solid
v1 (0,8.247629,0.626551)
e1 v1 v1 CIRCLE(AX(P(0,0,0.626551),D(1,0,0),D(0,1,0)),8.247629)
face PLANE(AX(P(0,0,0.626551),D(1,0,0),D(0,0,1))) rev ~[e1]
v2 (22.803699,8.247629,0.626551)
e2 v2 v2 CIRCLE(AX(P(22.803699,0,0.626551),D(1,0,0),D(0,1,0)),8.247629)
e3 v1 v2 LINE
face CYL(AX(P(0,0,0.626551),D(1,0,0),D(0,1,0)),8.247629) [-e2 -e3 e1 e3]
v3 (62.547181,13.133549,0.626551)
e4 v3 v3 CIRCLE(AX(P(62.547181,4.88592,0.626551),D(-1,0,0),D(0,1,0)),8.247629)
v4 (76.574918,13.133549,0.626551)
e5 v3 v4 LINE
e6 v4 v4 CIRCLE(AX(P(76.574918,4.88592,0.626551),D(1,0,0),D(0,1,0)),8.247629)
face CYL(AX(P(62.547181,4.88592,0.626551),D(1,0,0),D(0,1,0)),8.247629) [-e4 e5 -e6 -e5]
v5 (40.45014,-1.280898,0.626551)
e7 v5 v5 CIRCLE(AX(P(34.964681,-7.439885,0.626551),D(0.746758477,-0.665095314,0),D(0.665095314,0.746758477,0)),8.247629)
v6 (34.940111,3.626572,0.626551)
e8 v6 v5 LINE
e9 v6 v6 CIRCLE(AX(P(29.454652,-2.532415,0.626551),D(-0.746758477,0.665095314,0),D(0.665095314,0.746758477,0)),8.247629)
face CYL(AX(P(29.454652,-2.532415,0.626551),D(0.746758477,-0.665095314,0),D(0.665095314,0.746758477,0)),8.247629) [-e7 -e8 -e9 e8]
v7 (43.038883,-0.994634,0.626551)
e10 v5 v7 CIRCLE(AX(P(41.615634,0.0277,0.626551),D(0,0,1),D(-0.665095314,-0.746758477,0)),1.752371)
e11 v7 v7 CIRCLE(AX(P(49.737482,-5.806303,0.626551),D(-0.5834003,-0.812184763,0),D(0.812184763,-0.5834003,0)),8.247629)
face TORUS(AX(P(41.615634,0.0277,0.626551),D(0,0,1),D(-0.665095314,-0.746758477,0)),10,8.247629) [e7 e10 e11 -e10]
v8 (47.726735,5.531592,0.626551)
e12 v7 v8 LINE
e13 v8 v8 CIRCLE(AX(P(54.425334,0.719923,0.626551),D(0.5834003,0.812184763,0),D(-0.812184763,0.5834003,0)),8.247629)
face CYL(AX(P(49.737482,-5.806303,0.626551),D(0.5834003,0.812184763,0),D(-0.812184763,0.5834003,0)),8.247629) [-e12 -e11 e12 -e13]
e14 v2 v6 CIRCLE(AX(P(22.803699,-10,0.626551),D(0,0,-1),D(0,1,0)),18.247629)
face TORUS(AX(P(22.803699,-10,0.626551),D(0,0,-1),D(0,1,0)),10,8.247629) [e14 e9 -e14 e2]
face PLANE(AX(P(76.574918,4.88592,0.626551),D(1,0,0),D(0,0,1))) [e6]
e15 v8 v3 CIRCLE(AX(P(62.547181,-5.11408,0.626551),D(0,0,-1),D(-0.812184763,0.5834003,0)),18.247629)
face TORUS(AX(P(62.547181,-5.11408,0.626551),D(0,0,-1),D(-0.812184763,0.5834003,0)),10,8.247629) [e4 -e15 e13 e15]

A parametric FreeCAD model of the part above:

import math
import FreeCAD as App
import Part
import Sketcher

doc = App.newDocument("Part")
body = doc.addObject("PartDesign::Body", "Body")

# Sketch on YZ plane
sketch1 = body.newObject("Sketcher::SketchObject", "Sketch")
sketch1.AttachmentSupport = (doc.getObject("YZ_Plane"), [""])
sketch1.MapMode = "FlatFace"
sketch1.addGeometry(Part.Circle(App.Vector(0, 1, 0), App.Vector(0, 0, 1), 8), False)
sketch1.addConstraint(Sketcher.Constraint("PointOnObject", 0, 3, -2))
sketch1.addConstraint(Sketcher.Constraint("Diameter", 0, 16.495258))
sketch1.addConstraint(Sketcher.Constraint("DistanceY", -1, 1, 0, 3, 0.626551))

# Sketch on XY plane
sketch2 = body.newObject("Sketcher::SketchObject", "Sketch001")
sketch2.AttachmentSupport = (doc.getObject("XY_Plane"), [""])
sketch2.MapMode = "FlatFace"
sketch2.addGeometry(Part.LineSegment(App.Vector(0, 0, 0), App.Vector(23, 0, 0)), False)
sketch2.addGeometry(Part.ArcOfCircle(Part.Circle(App.Vector(23, -10, 0), App.Vector(0, 0, 1), 10), math.radians(48), math.radians(90)), False)
sketch2.addGeometry(Part.LineSegment(App.Vector(29, -3, 0), App.Vector(35, -7, 0)), False)
sketch2.addGeometry(Part.ArcOfCircle(Part.Circle(App.Vector(42, 0, 0), App.Vector(0, 0, 1), 10), math.radians(-132), math.radians(-36)), False)
sketch2.addGeometry(Part.LineSegment(App.Vector(50, -6, 0), App.Vector(54, 1, 0)), False)
sketch2.addGeometry(Part.ArcOfCircle(Part.Circle(App.Vector(63, -5, 0), App.Vector(0, 0, 1), 10), math.radians(90), math.radians(144)), False)
sketch2.addGeometry(Part.LineSegment(App.Vector(63, 5, 0), App.Vector(77, 5, 0)), False)
sketch2.addConstraint(Sketcher.Constraint("Tangent", 0, 2, 1, 2))
sketch2.addConstraint(Sketcher.Constraint("Tangent", 1, 1, 2, 1))
sketch2.addConstraint(Sketcher.Constraint("Tangent", 2, 2, 3, 1))
sketch2.addConstraint(Sketcher.Constraint("Tangent", 3, 2, 4, 1))
sketch2.addConstraint(Sketcher.Constraint("Tangent", 4, 2, 5, 2))
sketch2.addConstraint(Sketcher.Constraint("Tangent", 5, 1, 6, 1))
sketch2.addConstraint(Sketcher.Constraint("Horizontal", 0))
sketch2.addConstraint(Sketcher.Constraint("Horizontal", 6))
sketch2.addConstraint(Sketcher.Constraint("Coincident", 0, 1, -1, 1))
sketch2.addConstraint(Sketcher.Constraint("Equal", 1, 3))
sketch2.addConstraint(Sketcher.Constraint("Equal", 3, 5))
sketch2.addConstraint(Sketcher.Constraint("Radius", 1, 10.0))
sketch2.addConstraint(Sketcher.Constraint("DistanceX", 0, 1, 0, 2, 22.803699))
sketch2.addConstraint(Sketcher.Constraint("DistanceY", -1, 1, 3, 3, 0.0277))
sketch2.addConstraint(Sketcher.Constraint("DistanceX", 2, 2, 5, 3, 27.5825))
sketch2.addConstraint(Sketcher.Constraint("DistanceX", 3, 2, 5, 3, 12.8097))
sketch2.addConstraint(Sketcher.Constraint("DistanceX", 6, 1, 6, 2, 14.027737))
sketch2.addConstraint(Sketcher.Constraint("DistanceX", -1, 1, 5, 3, 62.547181))
doc.recompute()

additivepipe = body.newObject("PartDesign::AdditivePipe", "AdditivePipe")
additivepipe.Profile = sketch1
additivepipe.Spine = (sketch2, ["Edge1", "Edge2", "Edge3", "Edge4", "Edge5", "Edge6", "Edge7"])

doc.recompute()
